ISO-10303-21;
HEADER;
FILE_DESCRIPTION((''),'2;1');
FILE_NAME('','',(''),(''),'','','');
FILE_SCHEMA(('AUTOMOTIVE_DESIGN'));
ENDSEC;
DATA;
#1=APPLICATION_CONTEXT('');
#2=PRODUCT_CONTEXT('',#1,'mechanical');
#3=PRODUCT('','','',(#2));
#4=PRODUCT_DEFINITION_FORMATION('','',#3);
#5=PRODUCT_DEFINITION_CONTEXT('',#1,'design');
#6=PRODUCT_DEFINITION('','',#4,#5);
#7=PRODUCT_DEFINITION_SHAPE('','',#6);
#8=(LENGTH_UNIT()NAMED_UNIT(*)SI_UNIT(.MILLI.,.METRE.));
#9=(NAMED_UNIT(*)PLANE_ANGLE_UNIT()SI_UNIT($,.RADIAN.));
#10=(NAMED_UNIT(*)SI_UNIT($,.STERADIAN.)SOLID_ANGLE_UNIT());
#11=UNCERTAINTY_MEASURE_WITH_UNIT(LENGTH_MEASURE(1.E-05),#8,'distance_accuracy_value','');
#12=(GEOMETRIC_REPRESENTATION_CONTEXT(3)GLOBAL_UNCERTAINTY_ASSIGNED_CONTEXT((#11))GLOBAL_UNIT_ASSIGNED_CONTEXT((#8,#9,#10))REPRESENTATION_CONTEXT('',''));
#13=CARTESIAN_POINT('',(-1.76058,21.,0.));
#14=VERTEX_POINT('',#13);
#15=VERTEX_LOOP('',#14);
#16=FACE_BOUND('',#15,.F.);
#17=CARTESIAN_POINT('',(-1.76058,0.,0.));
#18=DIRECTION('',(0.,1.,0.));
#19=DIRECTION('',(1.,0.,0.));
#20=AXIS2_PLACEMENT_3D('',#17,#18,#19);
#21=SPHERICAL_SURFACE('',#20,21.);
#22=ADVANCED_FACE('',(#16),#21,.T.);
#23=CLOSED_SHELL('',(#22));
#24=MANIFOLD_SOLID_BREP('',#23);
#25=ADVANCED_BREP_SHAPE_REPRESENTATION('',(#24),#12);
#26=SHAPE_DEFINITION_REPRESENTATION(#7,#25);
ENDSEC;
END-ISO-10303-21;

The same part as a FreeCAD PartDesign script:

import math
import FreeCAD as App
import Part
import Sketcher

V = App.Vector

doc = App.newDocument("Part")
body = doc.addObject("PartDesign::Body", "Body")

sketch1 = body.newObject("Sketcher::SketchObject", "Sketch")
sketch1.AttachmentSupport = (doc.getObject("XY_Plane"), [""])
sketch1.MapMode = "FlatFace"
sketch1.addGeometry([
    Part.LineSegment(V(-2, 21, 0), V(-2, -21, 0)),
    Part.ArcOfCircle(Part.Circle(V(-2, 0, 0), V(0, 0, 1), 21), math.radians(-90), math.radians(90)),
], False)
sketch1.addGeometry(Part.LineSegment(V(-2, 21, 0), V(-2, -21, 0)), True)
sketch1.addConstraint([
    Sketcher.Constraint("Coincident", 0, 1, 1, 2),
    Sketcher.Constraint("Coincident", 1, 1, 0, 2),
    Sketcher.Constraint("Vertical", 0),
    Sketcher.Constraint("Vertical", 2),
    Sketcher.Constraint("Coincident", 2, 1, 0, 1),
    Sketcher.Constraint("PointOnObject", 1, 3, -1),
    Sketcher.Constraint("Vertical", 1, 3, 0, 1),
    Sketcher.Constraint("Equal", 0, 2),
    Sketcher.Constraint("Radius", 1, 21.0),
    Sketcher.Constraint("DistanceX", 1, 3, -1, 1, 1.76058),
])
revolution = body.newObject("PartDesign::Revolution", "Revolution")
revolution.Profile = sketch1
revolution.ReferenceAxis = (sketch1, ["Axis0"])
revolution.Angle = 360

doc.recompute()
